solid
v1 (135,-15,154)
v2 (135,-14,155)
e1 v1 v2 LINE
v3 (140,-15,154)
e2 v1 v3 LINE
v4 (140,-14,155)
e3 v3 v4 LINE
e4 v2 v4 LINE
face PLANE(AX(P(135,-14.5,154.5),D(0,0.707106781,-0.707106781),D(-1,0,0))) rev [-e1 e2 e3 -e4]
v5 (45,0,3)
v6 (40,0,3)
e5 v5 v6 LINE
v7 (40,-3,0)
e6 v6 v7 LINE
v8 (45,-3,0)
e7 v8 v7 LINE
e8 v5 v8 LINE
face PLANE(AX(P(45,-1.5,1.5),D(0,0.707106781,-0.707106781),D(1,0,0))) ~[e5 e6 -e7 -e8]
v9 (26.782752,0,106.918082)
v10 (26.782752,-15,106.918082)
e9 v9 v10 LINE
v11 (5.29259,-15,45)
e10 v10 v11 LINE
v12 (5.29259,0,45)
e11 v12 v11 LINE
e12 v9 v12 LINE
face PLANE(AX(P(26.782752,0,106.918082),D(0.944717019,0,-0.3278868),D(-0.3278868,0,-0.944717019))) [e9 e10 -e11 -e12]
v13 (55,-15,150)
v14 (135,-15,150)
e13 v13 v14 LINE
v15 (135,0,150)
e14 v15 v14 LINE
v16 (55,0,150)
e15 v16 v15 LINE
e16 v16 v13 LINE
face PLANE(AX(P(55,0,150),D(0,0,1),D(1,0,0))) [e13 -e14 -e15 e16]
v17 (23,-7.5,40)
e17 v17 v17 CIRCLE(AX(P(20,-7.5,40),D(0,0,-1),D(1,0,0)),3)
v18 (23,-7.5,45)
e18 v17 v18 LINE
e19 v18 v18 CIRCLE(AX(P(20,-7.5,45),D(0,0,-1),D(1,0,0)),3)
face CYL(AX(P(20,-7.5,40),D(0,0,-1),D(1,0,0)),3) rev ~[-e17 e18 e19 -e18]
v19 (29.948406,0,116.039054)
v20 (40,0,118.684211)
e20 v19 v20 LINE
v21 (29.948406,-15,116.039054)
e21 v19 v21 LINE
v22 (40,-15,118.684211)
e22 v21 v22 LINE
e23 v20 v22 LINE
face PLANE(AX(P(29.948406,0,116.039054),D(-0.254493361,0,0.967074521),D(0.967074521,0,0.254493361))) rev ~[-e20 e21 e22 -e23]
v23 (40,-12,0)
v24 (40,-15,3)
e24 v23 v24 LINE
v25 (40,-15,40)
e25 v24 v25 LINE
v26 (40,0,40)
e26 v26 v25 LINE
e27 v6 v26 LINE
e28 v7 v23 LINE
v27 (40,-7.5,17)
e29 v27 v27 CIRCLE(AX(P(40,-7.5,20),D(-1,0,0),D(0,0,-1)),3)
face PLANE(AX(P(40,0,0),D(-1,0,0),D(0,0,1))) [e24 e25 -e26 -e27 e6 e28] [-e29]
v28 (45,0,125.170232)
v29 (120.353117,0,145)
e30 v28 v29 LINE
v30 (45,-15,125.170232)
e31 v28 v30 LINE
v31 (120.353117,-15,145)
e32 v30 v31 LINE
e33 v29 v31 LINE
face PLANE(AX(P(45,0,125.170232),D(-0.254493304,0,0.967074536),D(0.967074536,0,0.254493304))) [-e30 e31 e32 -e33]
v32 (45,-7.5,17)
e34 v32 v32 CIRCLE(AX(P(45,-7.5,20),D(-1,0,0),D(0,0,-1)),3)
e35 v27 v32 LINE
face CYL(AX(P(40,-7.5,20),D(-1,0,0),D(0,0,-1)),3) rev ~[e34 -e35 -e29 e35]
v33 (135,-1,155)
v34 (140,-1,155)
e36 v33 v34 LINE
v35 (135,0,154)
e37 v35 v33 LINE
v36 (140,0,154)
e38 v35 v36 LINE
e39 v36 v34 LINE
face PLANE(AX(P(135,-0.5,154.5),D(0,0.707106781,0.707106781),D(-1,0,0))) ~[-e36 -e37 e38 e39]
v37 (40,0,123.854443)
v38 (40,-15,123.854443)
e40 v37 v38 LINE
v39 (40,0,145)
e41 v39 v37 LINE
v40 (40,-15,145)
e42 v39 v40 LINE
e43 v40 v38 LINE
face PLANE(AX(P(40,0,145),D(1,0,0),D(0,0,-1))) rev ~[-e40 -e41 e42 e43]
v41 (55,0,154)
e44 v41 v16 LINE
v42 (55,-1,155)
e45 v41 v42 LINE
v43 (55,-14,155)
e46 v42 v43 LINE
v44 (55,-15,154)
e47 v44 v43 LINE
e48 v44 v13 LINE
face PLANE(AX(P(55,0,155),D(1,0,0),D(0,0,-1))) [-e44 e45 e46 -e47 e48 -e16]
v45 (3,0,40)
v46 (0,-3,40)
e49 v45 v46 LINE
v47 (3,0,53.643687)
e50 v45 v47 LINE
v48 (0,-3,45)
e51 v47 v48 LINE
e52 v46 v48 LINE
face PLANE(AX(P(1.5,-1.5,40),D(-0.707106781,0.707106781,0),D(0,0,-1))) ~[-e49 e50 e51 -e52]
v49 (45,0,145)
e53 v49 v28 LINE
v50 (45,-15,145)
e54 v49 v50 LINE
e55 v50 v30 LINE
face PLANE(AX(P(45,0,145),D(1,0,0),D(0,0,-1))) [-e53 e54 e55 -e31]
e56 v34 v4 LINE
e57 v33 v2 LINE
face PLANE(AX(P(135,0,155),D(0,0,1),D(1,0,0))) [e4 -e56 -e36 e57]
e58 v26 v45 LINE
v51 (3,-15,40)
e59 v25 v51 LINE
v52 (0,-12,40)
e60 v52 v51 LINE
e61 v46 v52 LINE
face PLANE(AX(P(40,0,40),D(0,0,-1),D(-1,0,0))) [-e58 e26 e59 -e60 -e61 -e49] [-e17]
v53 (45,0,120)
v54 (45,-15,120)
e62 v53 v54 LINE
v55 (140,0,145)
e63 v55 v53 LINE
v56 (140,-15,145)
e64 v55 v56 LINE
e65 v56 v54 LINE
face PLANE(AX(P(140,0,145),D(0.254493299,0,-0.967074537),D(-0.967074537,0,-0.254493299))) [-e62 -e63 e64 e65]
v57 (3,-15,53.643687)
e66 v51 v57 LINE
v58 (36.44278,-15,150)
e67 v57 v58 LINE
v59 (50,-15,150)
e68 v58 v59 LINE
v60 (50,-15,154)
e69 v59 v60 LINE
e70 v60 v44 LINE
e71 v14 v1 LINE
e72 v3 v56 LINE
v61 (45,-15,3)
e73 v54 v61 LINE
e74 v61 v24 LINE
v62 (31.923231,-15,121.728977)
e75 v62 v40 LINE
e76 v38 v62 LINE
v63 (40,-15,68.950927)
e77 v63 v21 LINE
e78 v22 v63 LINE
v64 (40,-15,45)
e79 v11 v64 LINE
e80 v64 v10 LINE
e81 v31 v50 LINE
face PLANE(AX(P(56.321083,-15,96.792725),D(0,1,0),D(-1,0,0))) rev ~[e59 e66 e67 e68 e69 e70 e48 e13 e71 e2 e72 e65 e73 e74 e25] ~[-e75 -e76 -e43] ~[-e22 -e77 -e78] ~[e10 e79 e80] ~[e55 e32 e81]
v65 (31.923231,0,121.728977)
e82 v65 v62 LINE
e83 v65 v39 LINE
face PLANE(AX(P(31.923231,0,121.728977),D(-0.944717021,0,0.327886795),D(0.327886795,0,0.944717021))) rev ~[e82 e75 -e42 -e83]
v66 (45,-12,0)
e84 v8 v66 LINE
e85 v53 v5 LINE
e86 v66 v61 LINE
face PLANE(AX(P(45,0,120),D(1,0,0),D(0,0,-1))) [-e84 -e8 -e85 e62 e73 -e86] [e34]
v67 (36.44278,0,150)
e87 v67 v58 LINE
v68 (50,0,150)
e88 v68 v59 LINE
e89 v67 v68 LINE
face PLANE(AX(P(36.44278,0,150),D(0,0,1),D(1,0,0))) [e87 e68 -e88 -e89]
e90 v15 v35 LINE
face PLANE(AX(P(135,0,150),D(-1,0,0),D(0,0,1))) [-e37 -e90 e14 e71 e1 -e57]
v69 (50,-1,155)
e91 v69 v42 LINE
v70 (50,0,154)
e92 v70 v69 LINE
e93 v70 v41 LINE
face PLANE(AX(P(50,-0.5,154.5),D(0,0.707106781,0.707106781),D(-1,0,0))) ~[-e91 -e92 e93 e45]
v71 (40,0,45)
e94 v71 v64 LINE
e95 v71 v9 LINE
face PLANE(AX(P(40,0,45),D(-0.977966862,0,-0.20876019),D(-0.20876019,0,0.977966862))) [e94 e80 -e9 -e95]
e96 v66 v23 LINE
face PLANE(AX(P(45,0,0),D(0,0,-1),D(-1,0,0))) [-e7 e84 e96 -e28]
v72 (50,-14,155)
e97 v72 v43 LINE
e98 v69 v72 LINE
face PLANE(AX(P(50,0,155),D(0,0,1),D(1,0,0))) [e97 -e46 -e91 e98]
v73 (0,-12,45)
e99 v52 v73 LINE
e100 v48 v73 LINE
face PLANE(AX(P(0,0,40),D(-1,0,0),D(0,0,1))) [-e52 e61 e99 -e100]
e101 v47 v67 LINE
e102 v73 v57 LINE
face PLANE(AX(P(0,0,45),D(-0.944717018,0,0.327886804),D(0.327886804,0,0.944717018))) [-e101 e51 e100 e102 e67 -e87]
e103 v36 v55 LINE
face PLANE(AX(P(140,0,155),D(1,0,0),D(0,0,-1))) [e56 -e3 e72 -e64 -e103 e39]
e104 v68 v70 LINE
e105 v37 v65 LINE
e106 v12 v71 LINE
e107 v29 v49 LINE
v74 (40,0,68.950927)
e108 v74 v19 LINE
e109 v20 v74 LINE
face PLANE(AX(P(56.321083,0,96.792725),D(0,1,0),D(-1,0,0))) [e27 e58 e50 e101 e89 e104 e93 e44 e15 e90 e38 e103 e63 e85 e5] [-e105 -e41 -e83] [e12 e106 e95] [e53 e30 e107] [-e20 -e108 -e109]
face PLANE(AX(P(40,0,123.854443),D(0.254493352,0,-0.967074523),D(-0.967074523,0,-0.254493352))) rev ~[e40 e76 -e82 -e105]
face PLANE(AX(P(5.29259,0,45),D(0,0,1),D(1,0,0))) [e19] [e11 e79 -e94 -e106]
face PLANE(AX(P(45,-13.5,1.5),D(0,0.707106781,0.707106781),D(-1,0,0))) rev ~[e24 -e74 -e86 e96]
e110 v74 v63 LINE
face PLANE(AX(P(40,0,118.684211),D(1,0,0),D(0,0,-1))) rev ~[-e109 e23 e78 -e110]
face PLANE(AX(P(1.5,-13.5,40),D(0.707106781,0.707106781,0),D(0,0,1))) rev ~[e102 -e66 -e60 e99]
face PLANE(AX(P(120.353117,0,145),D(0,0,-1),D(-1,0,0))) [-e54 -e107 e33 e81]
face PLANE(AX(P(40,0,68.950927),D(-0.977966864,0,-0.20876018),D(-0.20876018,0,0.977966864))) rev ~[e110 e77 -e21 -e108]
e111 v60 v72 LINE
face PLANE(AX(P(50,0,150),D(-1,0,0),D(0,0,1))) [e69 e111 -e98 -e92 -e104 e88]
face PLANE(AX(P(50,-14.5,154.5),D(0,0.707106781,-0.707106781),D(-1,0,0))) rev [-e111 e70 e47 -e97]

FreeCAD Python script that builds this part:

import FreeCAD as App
import Part
import Sketcher

V = App.Vector
Q = App.Units.Quantity


def edges_at(feature, points):
    """Names of the edges that pass closest to the given points."""
    edges = feature.Shape.Edges
    near = lambda p: min(range(len(edges)), key=lambda i: edges[i].distToShape(Part.Vertex(*p))[0])
    return sorted({f"Edge{near(p) + 1}" for p in points})

doc = App.newDocument("Part")
body = doc.addObject("PartDesign::Body", "Body")

sketch1 = body.newObject("Sketcher::SketchObject", "Sketch")
sketch1.AttachmentSupport = (doc.getObject("XZ_Plane"), [""])
sketch1.MapMode = "FlatFace"
sketch1.addGeometry(Part.LineSegment(V(40, 40, 0), V(40, 0, 0)), False)
sketch1.addGeometry(Part.LineSegment(V(40, 0, 0), V(45, 0, 0)), False)
sketch1.addGeometry(Part.LineSegment(V(45, 0, 0), V(45, 120, 0)), False)
sketch1.addGeometry(Part.LineSegment(V(45, 120, 0), V(140, 145, 0)), False)
sketch1.addGeometry(Part.LineSegment(V(140, 145, 0), V(140, 155, 0)), False)
sketch1.addGeometry(Part.LineSegment(V(140, 155, 0), V(135, 155, 0)), False)
sketch1.addGeometry(Part.LineSegment(V(135, 155, 0), V(135, 150, 0)), False)
sketch1.addGeometry(Part.LineSegment(V(135, 150, 0), V(55, 150, 0)), False)
sketch1.addGeometry(Part.LineSegment(V(55, 150, 0), V(55, 155, 0)), False)
sketch1.addGeometry(Part.LineSegment(V(55, 155, 0), V(50, 155, 0)), False)
sketch1.addGeometry(Part.LineSegment(V(50, 155, 0), V(50, 150, 0)), False)
sketch1.addGeometry(Part.LineSegment(V(50, 150, 0), V(36.44278, 150, 0)), False)
sketch1.addGeometry(Part.LineSegment(V(36.44278, 150, 0), V(0, 45, 0)), False)
sketch1.addGeometry(Part.LineSegment(V(0, 45, 0), V(0, 40, 0)), False)
sketch1.addGeometry(Part.LineSegment(V(0, 40, 0), V(40, 40, 0)), False)
sketch1.addGeometry(Part.LineSegment(V(40, 68.950927, 0), V(29.948406, 116.039054, 0)), False)
sketch1.addGeometry(Part.LineSegment(V(29.948406, 116.039054, 0), V(40, 118.684211, 0)), False)
sketch1.addGeometry(Part.LineSegment(V(40, 118.684211, 0), V(40, 68.950927, 0)), False)
sketch1.addGeometry(Part.LineSegment(V(40, 45, 0), V(5.29259, 45, 0)), False)
sketch1.addGeometry(Part.LineSegment(V(5.29259, 45, 0), V(26.782752, 106.918082, 0)), False)
sketch1.addGeometry(Part.LineSegment(V(26.782752, 106.918082, 0), V(40, 45, 0)), False)
sketch1.addGeometry(Part.LineSegment(V(45, 145, 0), V(120.353117, 145, 0)), False)
sketch1.addGeometry(Part.LineSegment(V(120.353117, 145, 0), V(45, 125.170232, 0)), False)
sketch1.addGeometry(Part.LineSegment(V(45, 125.170232, 0), V(45, 145, 0)), False)
sketch1.addGeometry(Part.LineSegment(V(40, 123.854443, 0), V(31.923231, 121.728977, 0)), False)
sketch1.addGeometry(Part.LineSegment(V(31.923231, 121.728977, 0), V(40, 145, 0)), False)
sketch1.addGeometry(Part.LineSegment(V(40, 145, 0), V(40, 123.854443, 0)), False)
sketch1.addConstraint(Sketcher.Constraint("Coincident", 0, 2, 1, 1))
sketch1.addConstraint(Sketcher.Constraint("Coincident", 1, 2, 2, 1))
sketch1.addConstraint(Sketcher.Constraint("Coincident", 2, 2, 3, 1))
sketch1.addConstraint(Sketcher.Constraint("Coincident", 3, 2, 4, 1))
sketch1.addConstraint(Sketcher.Constraint("Coincident", 4, 2, 5, 1))
sketch1.addConstraint(Sketcher.Constraint("Coincident", 5, 2, 6, 1))
sketch1.addConstraint(Sketcher.Constraint("Coincident", 6, 2, 7, 1))
sketch1.addConstraint(Sketcher.Constraint("Coincident", 7, 2, 8, 1))
sketch1.addConstraint(Sketcher.Constraint("Coincident", 8, 2, 9, 1))
sketch1.addConstraint(Sketcher.Constraint("Coincident", 9, 2, 10, 1))
sketch1.addConstraint(Sketcher.Constraint("Coincident", 10, 2, 11, 1))
sketch1.addConstraint(Sketcher.Constraint("Coincident", 11, 2, 12, 1))
sketch1.addConstraint(Sketcher.Constraint("Coincident", 12, 2, 13, 1))
sketch1.addConstraint(Sketcher.Constraint("Coincident", 13, 2, 14, 1))
sketch1.addConstraint(Sketcher.Constraint("Coincident", 14, 2, 0, 1))
sketch1.addConstraint(Sketcher.Constraint("Coincident", 15, 2, 16, 1))
sketch1.addConstraint(Sketcher.Constraint("Coincident", 16, 2, 17, 1))
sketch1.addConstraint(Sketcher.Constraint("Coincident", 17, 2, 15, 1))
sketch1.addConstraint(Sketcher.Constraint("Coincident", 18, 2, 19, 1))
sketch1.addConstraint(Sketcher.Constraint("Coincident", 19, 2, 20, 1))
sketch1.addConstraint(Sketcher.Constraint("Coincident", 20, 2, 18, 1))
sketch1.addConstraint(Sketcher.Constraint("Coincident", 21, 2, 22, 1))
sketch1.addConstraint(Sketcher.Constraint("Coincident", 22, 2, 23, 1))
sketch1.addConstraint(Sketcher.Constraint("Coincident", 23, 2, 21, 1))
sketch1.addConstraint(Sketcher.Constraint("Coincident", 24, 2, 25, 1))
sketch1.addConstraint(Sketcher.Constraint("Coincident", 25, 2, 26, 1))
sketch1.addConstraint(Sketcher.Constraint("Coincident", 26, 2, 24, 1))
sketch1.addConstraint(Sketcher.Constraint("Vertical", 0))
sketch1.addConstraint(Sketcher.Constraint("Horizontal", 1))
sketch1.addConstraint(Sketcher.Constraint("Vertical", 2))
sketch1.addConstraint(Sketcher.Constraint("Vertical", 4))
sketch1.addConstraint(Sketcher.Constraint("Horizontal", 5))
sketch1.addConstraint(Sketcher.Constraint("Vertical", 6))
sketch1.addConstraint(Sketcher.Constraint("Horizontal", 7))
sketch1.addConstraint(Sketcher.Constraint("Vertical", 8))
sketch1.addConstraint(Sketcher.Constraint("Horizontal", 9))
sketch1.addConstraint(Sketcher.Constraint("Vertical", 10))
sketch1.addConstraint(Sketcher.Constraint("Horizontal", 11))
sketch1.addConstraint(Sketcher.Constraint("Vertical", 13))
sketch1.addConstraint(Sketcher.Constraint("Horizontal", 14))
sketch1.addConstraint(Sketcher.Constraint("Vertical", 17))
sketch1.addConstraint(Sketcher.Constraint("Horizontal", 18))
sketch1.addConstraint(Sketcher.Constraint("Horizontal", 21))
sketch1.addConstraint(Sketcher.Constraint("Vertical", 23))
sketch1.addConstraint(Sketcher.Constraint("Vertical", 26))
sketch1.addConstraint(Sketcher.Constraint("PointOnObject", 0, 2, -1))
sketch1.addConstraint(Sketcher.Constraint("PointOnObject", 12, 2, -2))
sketch1.addConstraint(Sketcher.Constraint("DistanceX", 1, 1, 1, 2, Q("5 mm")))
sketch1.addConstraint(Sketcher.Constraint("DistanceX", 5, 2, 5, 1, Q("5 mm")))
sketch1.addConstraint(Sketcher.Constraint("DistanceX", 7, 2, 7, 1, Q("80 mm")))
sketch1.addConstraint(Sketcher.Constraint("DistanceX", 9, 2, 9, 1, Q("5 mm")))
sketch1.addConstraint(Sketcher.Constraint("DistanceX", 14, 1, 14, 2, Q("40 mm")))
sketch1.addConstraint(Sketcher.Constraint("DistanceY", 0, 2, 0, 1, Q("40 mm")))
sketch1.addConstraint(Sketcher.Constraint("DistanceY", 2, 1, 2, 2, Q("120 mm")))
sketch1.addConstraint(Sketcher.Constraint("DistanceY", 4, 1, 4, 2, Q("10 mm")))
sketch1.addConstraint(Sketcher.Constraint("DistanceY", 6, 2, 6, 1, Q("5 mm")))
sketch1.addConstraint(Sketcher.Constraint("DistanceY", 8, 1, 8, 2, Q("5 mm")))
sketch1.addConstraint(Sketcher.Constraint("DistanceY", 10, 2, 10, 1, Q("5 mm")))
sketch1.addConstraint(Sketcher.Constraint("DistanceY", 13, 2, 13, 1, Q("5 mm")))
sketch1.addConstraint(Sketcher.Constraint("DistanceX", -1, 1, 3, 2, Q("140 mm")))
sketch1.addConstraint(Sketcher.Constraint("DistanceY", -1, 1, 3, 2, Q("145 mm")))
sketch1.addConstraint(Sketcher.Constraint("DistanceX", -1, 1, 16, 2, Q("40 mm")))
sketch1.addConstraint(Sketcher.Constraint("DistanceY", -1, 1, 18, 2, Q("45 mm")))
sketch1.addConstraint(Sketcher.Constraint("DistanceX", -1, 1, 20, 2, Q("40 mm")))
sketch1.addConstraint(Sketcher.Constraint("DistanceY", -1, 1, 21, 2, Q("145 mm")))
sketch1.addConstraint(Sketcher.Constraint("DistanceX", -1, 1, 22, 2, Q("45 mm")))
sketch1.addConstraint(Sketcher.Constraint("DistanceX", -1, 1, 25, 2, Q("40 mm")))
sketch1.addConstraint(Sketcher.Constraint("DistanceY", -1, 1, 25, 2, Q("145 mm")))
sketch1.addConstraint(Sketcher.Constraint("Distance", 15, Q("48.149 mm")))
sketch1.addConstraint(Sketcher.Constraint("DistanceX", 11, 2, 11, 1, Q("13.55722 mm")))
sketch1.addConstraint(Sketcher.Constraint("DistanceX", 18, 2, 18, 1, Q("34.70741 mm")))
sketch1.addConstraint(Sketcher.Constraint("DistanceY", 23, 1, 23, 2, Q("19.829768 mm")))
sketch1.addConstraint(Sketcher.Constraint("DistanceX", 21, 1, 21, 2, Q("75.353117 mm")))
sketch1.addConstraint(Sketcher.Constraint("DistanceY", 17, 2, 17, 1, Q("49.733284 mm")))
sketch1.addConstraint(Sketcher.Constraint("DistanceY", 26, 2, 26, 1, Q("21.145557 mm")))
sketch1.addConstraint(Sketcher.Constraint("DistanceY", -1, 1, 16, 2, Q("118.684211 mm")))
sketch1.addConstraint(Sketcher.Constraint("DistanceX", -1, 1, 19, 2, Q("26.782752 mm")))
sketch1.addConstraint(Sketcher.Constraint("DistanceY", -1, 1, 19, 2, Q("106.918082 mm")))
sketch1.addConstraint(Sketcher.Constraint("DistanceX", -1, 1, 24, 2, Q("31.923231 mm")))
sketch1.addConstraint(Sketcher.Constraint("DistanceY", 19, 2, 15, 2, Q("9.120972 mm")))
sketch1.addConstraint(Sketcher.Constraint("Distance", 24, Q("8.351754 mm")))
pad1 = body.newObject("PartDesign::Pad", "Pad")
pad1.Profile = sketch1
pad1.Length = 15

sketch2 = body.newObject("Sketcher::SketchObject", "Sketch001")
sketch2.AttachmentSupport = (doc.getObject("XY_Plane"), [""])
sketch2.MapMode = "FlatFace"
sketch2.AttachmentOffset = App.Placement(V(0, 0, 40), App.Rotation())
sketch2.addGeometry(Part.Circle(V(20, -7.5, 0), V(0, 0, 1), 3), False)
sketch2.addConstraint(Sketcher.Constraint("Diameter", 0, Q("6 mm")))
sketch2.addConstraint(Sketcher.Constraint("DistanceX", -1, 1, 0, 3, Q("20 mm")))
sketch2.addConstraint(Sketcher.Constraint("DistanceY", 0, 3, -1, 1, Q("7.5 mm")))
pocket1 = body.newObject("PartDesign::Pocket", "Pocket")
pocket1.Profile = sketch2
pocket1.Length = 5
pocket1.Reversed = True

sketch3 = body.newObject("Sketcher::SketchObject", "Sketch002")
sketch3.AttachmentSupport = (doc.getObject("YZ_Plane"), [""])
sketch3.MapMode = "FlatFace"
sketch3.AttachmentOffset = App.Placement(V(0, 0, 40), App.Rotation())
sketch3.addGeometry(Part.Circle(V(-7.5, 20, 0), V(0, 0, 1), 3), False)
sketch3.addConstraint(Sketcher.Constraint("Diameter", 0, Q("6 mm")))
sketch3.addConstraint(Sketcher.Constraint("DistanceY", -1, 1, 0, 3, Q("20 mm")))
sketch3.addConstraint(Sketcher.Constraint("DistanceX", 0, 3, -1, 1, Q("7.5 mm")))
pocket2 = body.newObject("PartDesign::Pocket", "Pocket001")
pocket2.Profile = sketch3
pocket2.Length = 5
pocket2.Reversed = True
doc.recompute()

chamfer = body.newObject("PartDesign::Chamfer", "Chamfer")
chamfer.Base = (pocket2, edges_at(pocket2, [
    (137.5, -15, 155),
    (137.5, 0, 155),
    (52.5, -15, 155),
    (52.5, 0, 155),
]))
chamfer.Size = 1
doc.recompute()

chamfer2 = body.newObject("PartDesign::Chamfer", "Chamfer001")
chamfer2.Base = (chamfer, edges_at(chamfer, [
    (42.5, -15, 0),
    (42.5, 0, 0),
    (0, -15, 42.5),
    (0, 0, 42.5),
]))
chamfer2.Size = 3

doc.recompute()
